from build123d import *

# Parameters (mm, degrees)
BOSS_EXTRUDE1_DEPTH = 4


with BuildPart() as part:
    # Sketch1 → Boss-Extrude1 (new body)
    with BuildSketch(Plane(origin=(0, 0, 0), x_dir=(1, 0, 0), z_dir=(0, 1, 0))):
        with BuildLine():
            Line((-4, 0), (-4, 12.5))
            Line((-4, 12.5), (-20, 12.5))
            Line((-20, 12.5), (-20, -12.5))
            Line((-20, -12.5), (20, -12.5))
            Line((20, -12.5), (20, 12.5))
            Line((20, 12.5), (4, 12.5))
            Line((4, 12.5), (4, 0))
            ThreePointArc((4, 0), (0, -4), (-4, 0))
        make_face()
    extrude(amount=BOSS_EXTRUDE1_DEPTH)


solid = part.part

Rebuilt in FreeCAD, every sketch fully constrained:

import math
import FreeCAD as App
import Part
import Sketcher
Q = App.Units.Quantity

doc = App.newDocument("Part")
body = doc.addObject("PartDesign::Body", "Body")

sketch1 = body.newObject("Sketcher::SketchObject", "Sketch")
sketch1.AttachmentSupport = (doc.getObject("XZ_Plane"), [""])
sketch1.MapMode = "FlatFace"
sketch1.addGeometry([
    Part.LineSegment(App.Vector(-4, 0, 0), App.Vector(-4, -12.5, 0)),
    Part.LineSegment(App.Vector(-4, -12.5, 0), App.Vector(-20, -12.5, 0)),
    Part.LineSegment(App.Vector(-20, -12.5, 0), App.Vector(-20, 12.5, 0)),
    Part.LineSegment(App.Vector(-20, 12.5, 0), App.Vector(20, 12.5, 0)),
    Part.LineSegment(App.Vector(20, 12.5, 0), App.Vector(20, -12.5, 0)),
    Part.LineSegment(App.Vector(20, -12.5, 0), App.Vector(4, -12.5, 0)),
    Part.LineSegment(App.Vector(4, -12.5, 0), App.Vector(4, 0, 0)),
    Part.ArcOfCircle(Part.Circle(App.Vector(0, 0, 0), App.Vector(0, 0, 1), 4), math.radians(0), math.radians(180)),
], False)
sketch1.addConstraint([
    Sketcher.Constraint("Coincident", 0, 2, 1, 1),
    Sketcher.Constraint("Coincident", 1, 2, 2, 1),
    Sketcher.Constraint("Coincident", 2, 2, 3, 1),
    Sketcher.Constraint("Coincident", 3, 2, 4, 1),
    Sketcher.Constraint("Coincident", 4, 2, 5, 1),
    Sketcher.Constraint("Coincident", 5, 2, 6, 1),
    Sketcher.Constraint("Tangent", 6, 2, 7, 1),
    Sketcher.Constraint("Tangent", 7, 2, 0, 1),
    Sketcher.Constraint("Vertical", 0),
    Sketcher.Constraint("Horizontal", 1),
    Sketcher.Constraint("Vertical", 2),
    Sketcher.Constraint("Horizontal", 3),
    Sketcher.Constraint("Vertical", 4),
    Sketcher.Constraint("Horizontal", 5),
    Sketcher.Constraint("Vertical", 6),
    Sketcher.Constraint("Coincident", 7, 3, -1, 1),
    Sketcher.Constraint("Symmetric", 1, 2, 3, 2, -1, 1),
    Sketcher.Constraint("Horizontal", 1, 2, 4, 2),
    Sketcher.Constraint("Radius", 7, Q("4 mm")),
    Sketcher.Constraint("DistanceX", 1, 2, 1, 1, Q("16 mm")),
    Sketcher.Constraint("DistanceY", 2, 1, 2, 2, Q("25 mm")),
])
pad1 = body.newObject("PartDesign::Pad", "Pad")
pad1.Profile = sketch1
pad1.Length = 4
pad1.Reversed = True

doc.recompute()
